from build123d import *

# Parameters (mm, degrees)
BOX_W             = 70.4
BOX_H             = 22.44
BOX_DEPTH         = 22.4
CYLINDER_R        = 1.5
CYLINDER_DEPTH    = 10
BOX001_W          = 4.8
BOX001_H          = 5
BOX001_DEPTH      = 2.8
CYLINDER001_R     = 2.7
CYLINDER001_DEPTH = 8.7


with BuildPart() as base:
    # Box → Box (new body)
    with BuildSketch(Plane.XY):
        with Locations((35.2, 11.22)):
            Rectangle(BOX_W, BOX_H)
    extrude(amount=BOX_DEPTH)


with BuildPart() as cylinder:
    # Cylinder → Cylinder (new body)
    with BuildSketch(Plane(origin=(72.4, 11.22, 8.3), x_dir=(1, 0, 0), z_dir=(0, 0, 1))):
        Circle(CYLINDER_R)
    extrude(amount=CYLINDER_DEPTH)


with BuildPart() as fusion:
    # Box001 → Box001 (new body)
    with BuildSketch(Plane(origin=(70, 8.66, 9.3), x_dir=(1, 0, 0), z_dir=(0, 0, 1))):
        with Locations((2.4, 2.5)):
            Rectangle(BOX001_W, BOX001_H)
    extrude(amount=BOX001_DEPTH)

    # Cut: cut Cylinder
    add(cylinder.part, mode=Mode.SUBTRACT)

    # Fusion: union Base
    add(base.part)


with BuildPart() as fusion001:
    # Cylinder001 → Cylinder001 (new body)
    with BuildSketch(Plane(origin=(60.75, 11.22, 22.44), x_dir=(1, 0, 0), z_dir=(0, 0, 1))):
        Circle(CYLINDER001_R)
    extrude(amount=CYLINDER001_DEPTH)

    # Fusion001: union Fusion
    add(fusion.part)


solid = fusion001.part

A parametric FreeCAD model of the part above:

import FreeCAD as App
import Part
import Sketcher

V = App.Vector
Q = App.Units.Quantity


def add_polygon(sketch, points):
    """Adds a closed chain of lines whose ends are joined by coincident constraints."""
    first, n = sketch.GeometryCount, len(points)
    for a, b in zip(points, points[1:] + points[:1]):
        sketch.addGeometry(Part.LineSegment(App.Vector(*a, 0), App.Vector(*b, 0)), False)
    for i in range(n):
        sketch.addConstraint(Sketcher.Constraint("Coincident", first + i, 2, first + (i + 1) % n, 1))

doc = App.newDocument("Part")
params = doc.addObject("Spreadsheet::Sheet", "Params")
for row, (alias, value) in enumerate([
    ("sketch1_width", "70.4 mm"),
    ("sketch1_height", "22.44 mm"),
    ("pad1_length", "22.4 mm"),
    ("sketch2_diameter", "3 mm"),
    ("pad2_length", "10 mm"),
    ("sketch3_height", "5 mm"),
    ("sketch3_width", "4.8 mm"),
    ("pad3_length", "2.8 mm"),
    ("sketch4_diameter", "5.4 mm"),
    ("pad4_length", "8.7 mm"),
], start=1):
    params.set(f"A{row}", alias)
    params.set(f"B{row}", "=" + value)
    params.setAlias(f"B{row}", alias)

body = doc.addObject("PartDesign::Body", "Body")

sketch1 = body.newObject("Sketcher::SketchObject", "Sketch")
sketch1.AttachmentSupport = (doc.getObject("XY_Plane"), [""])
sketch1.MapMode = "FlatFace"
add_polygon(sketch1, [(0, 22), (0, 0), (70, 0), (70, 22)])
sketch1.addConstraint(Sketcher.Constraint("Vertical", 0))
sketch1.addConstraint(Sketcher.Constraint("Horizontal", 1))
sketch1.addConstraint(Sketcher.Constraint("Vertical", 2))
sketch1.addConstraint(Sketcher.Constraint("Horizontal", 3))
sketch1.addConstraint(Sketcher.Constraint("Coincident", 0, 2, -1, 1))
sketch1.addConstraint(Sketcher.Constraint("DistanceX", 1, 1, 1, 2, Q("70.4 mm")))
sketch1.addConstraint(Sketcher.Constraint("DistanceY", 0, 2, 0, 1, Q("22.44 mm")))
sketch1.setExpression("Constraints[9]", "Params.sketch1_width")
sketch1.setExpression("Constraints[10]", "Params.sketch1_height")
pad1 = body.newObject("PartDesign::Pad", "Pad")
pad1.Profile = sketch1
pad1.setExpression("Length", "Params.pad1_length")
body2 = doc.addObject("PartDesign::Body", "Body001")

sketch2 = body2.newObject("Sketcher::SketchObject", "Sketch001")
sketch2.AttachmentSupport = (doc.getObject("XY_Plane001"), [""])
sketch2.MapMode = "FlatFace"
sketch2.AttachmentOffset = App.Placement(V(0, 0, 8.3), App.Rotation())
sketch2.addGeometry(Part.Circle(V(72.4, 11.2, 0), V(0, 0, 1), 1.5), False)
sketch2.addConstraint(Sketcher.Constraint("Diameter", 0, Q("3 mm")))
sketch2.addConstraint(Sketcher.Constraint("DistanceX", -1, 1, 0, 3, Q("72.4 mm")))
sketch2.addConstraint(Sketcher.Constraint("DistanceY", -1, 1, 0, 3, Q("11.22 mm")))
sketch2.setExpression("Constraints[0]", "Params.sketch2_diameter")
pad2 = body2.newObject("PartDesign::Pad", "Pad001")
pad2.Profile = sketch2
pad2.setExpression("Length", "Params.pad2_length")
body3 = doc.addObject("PartDesign::Body", "Body002")

sketch3 = body3.newObject("Sketcher::SketchObject", "Sketch002")
sketch3.AttachmentSupport = (doc.getObject("XY_Plane002"), [""])
sketch3.MapMode = "FlatFace"
sketch3.AttachmentOffset = App.Placement(V(0, 0, 9.3), App.Rotation())
add_polygon(sketch3, [(70, 13.7), (70, 8.7), (74.8, 8.7), (74.8, 13.7)])
sketch3.addConstraint(Sketcher.Constraint("Vertical", 0))
sketch3.addConstraint(Sketcher.Constraint("Horizontal", 1))
sketch3.addConstraint(Sketcher.Constraint("Vertical", 2))
sketch3.addConstraint(Sketcher.Constraint("Horizontal", 3))
sketch3.addConstraint(Sketcher.Constraint("DistanceY", 0, 2, 0, 1, Q("5 mm")))
sketch3.addConstraint(Sketcher.Constraint("DistanceX", 1, 1, 1, 2, Q("4.8 mm")))
sketch3.addConstraint(Sketcher.Constraint("DistanceX", -1, 1, 0, 2, Q("70 mm")))
sketch3.addConstraint(Sketcher.Constraint("DistanceY", -1, 1, 0, 2, Q("8.66 mm")))
sketch3.setExpression("Constraints[8]", "Params.sketch3_height")
sketch3.setExpression("Constraints[9]", "Params.sketch3_width")
pad3 = body3.newObject("PartDesign::Pad", "Pad002")
pad3.Profile = sketch3
pad3.setExpression("Length", "Params.pad3_length")
doc.recompute()

boolean = body3.newObject("PartDesign::Boolean", "Boolean")
boolean.Type = "Cut"
boolean.addObjects([body2])
doc.recompute()

boolean2 = body3.newObject("PartDesign::Boolean", "Boolean001")
boolean2.Type = "Fuse"
boolean2.addObjects([body])
body4 = doc.addObject("PartDesign::Body", "Body003")
body4.AllowCompound = True

sketch4 = body4.newObject("Sketcher::SketchObject", "Sketch003")
sketch4.AttachmentSupport = (doc.getObject("XY_Plane003"), [""])
sketch4.MapMode = "FlatFace"
sketch4.AttachmentOffset = App.Placement(V(0, 0, 22.44), App.Rotation())
sketch4.addGeometry(Part.Circle(V(60.8, 11.2, 0), V(0, 0, 1), 2.7), False)
sketch4.addConstraint(Sketcher.Constraint("Diameter", 0, Q("5.4 mm")))
sketch4.addConstraint(Sketcher.Constraint("DistanceX", -1, 1, 0, 3, Q("60.75 mm")))
sketch4.addConstraint(Sketcher.Constraint("DistanceY", -1, 1, 0, 3, Q("11.22 mm")))
sketch4.setExpression("Constraints[0]", "Params.sketch4_diameter")
pad4 = body4.newObject("PartDesign::Pad", "Pad003")
pad4.Profile = sketch4
pad4.setExpression("Length", "Params.pad4_length")
doc.recompute()

boolean3 = body4.newObject("PartDesign::Boolean", "Boolean002")
boolean3.Type = "Fuse"
boolean3.addObjects([body3])

doc.recompute()
